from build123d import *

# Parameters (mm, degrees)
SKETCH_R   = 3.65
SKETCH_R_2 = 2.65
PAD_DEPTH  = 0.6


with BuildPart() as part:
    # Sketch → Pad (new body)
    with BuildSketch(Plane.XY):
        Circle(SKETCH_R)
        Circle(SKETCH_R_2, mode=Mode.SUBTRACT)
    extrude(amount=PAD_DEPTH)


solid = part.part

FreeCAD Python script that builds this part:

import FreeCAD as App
import Part
import Sketcher
from FreeCAD import Vector
Q = App.Units.Quantity

doc = App.newDocument("Part")
params = doc.addObject("Spreadsheet::Sheet", "Params")
for row, (alias, value) in enumerate([
    ("sketch1_diameter", "7.3 mm"),
    ("sketch1_diameter2", "5.3 mm"),
    ("pad1_length", "0.6 mm"),
], start=1):
    params.set(f"A{row}", alias)
    params.set(f"B{row}", "=" + value)
    params.setAlias(f"B{row}", alias)

body = doc.addObject("PartDesign::Body", "Body")

# Sketch on XY plane
sketch1 = body.newObject("Sketcher::SketchObject", "Sketch")
sketch1.AttachmentSupport = (doc.getObject("XY_Plane"), [""])
sketch1.MapMode = "FlatFace"
sketch1.addGeometry([
    Part.Circle(Vector(0, 0, 0), Vector(0, 0, 1), 3.6),
    Part.Circle(Vector(0, 0, 0), Vector(0, 0, 1), 2.6),
], False)
sketch1.addConstraint([
    Sketcher.Constraint("Coincident", 0, 3, -1, 1),
    Sketcher.Constraint("Coincident", 1, 3, -1, 1),
    Sketcher.Constraint("Diameter", 0, Q("7.3 mm")),
    Sketcher.Constraint("Diameter", 1, Q("5.3 mm")),
])
sketch1.setExpression("Constraints[2]", "Params.sketch1_diameter")
sketch1.setExpression("Constraints[3]", "Params.sketch1_diameter2")
pad1 = body.newObject("PartDesign::Pad", "Pad")
pad1.Profile = sketch1
pad1.setExpression("Length", "Params.pad1_length")

doc.recompute()
